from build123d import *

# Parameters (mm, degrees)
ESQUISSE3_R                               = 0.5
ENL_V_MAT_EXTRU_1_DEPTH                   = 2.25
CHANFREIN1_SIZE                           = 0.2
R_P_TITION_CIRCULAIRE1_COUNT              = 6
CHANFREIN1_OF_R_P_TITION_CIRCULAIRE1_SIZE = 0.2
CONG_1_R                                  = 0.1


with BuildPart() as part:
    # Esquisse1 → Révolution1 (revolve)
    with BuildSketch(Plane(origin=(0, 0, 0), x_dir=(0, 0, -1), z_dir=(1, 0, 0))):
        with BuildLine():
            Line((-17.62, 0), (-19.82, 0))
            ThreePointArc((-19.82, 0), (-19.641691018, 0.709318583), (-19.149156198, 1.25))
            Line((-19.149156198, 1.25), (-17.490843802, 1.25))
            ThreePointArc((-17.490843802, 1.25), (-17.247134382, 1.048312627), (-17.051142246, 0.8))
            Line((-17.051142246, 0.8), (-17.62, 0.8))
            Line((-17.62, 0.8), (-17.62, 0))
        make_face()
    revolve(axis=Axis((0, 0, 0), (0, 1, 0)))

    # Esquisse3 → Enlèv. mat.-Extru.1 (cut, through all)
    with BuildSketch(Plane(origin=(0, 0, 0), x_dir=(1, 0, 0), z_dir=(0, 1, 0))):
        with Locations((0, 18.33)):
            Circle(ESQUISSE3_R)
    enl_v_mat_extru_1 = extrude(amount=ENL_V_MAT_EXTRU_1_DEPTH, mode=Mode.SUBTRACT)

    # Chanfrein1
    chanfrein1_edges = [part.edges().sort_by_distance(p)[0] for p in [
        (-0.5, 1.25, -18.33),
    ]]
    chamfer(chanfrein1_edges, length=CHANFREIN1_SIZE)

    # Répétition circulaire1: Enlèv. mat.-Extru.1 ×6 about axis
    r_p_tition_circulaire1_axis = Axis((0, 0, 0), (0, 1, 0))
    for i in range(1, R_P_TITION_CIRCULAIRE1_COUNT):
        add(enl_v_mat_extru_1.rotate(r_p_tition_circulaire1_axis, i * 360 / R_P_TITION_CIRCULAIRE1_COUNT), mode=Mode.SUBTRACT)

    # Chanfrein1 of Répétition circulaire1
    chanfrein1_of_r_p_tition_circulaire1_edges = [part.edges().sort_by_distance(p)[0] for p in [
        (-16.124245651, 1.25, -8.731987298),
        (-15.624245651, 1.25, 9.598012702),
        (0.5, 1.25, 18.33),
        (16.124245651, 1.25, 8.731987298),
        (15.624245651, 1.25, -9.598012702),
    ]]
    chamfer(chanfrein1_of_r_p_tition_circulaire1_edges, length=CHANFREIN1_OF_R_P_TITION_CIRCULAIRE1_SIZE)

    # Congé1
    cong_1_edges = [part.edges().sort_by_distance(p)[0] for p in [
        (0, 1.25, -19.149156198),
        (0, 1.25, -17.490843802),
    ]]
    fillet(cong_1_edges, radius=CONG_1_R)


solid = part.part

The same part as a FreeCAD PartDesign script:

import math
import FreeCAD as App
import Part
import Sketcher


def edges_at(feature, points):
    """Names of the edges that pass closest to the given points."""
    edges = feature.Shape.Edges
    near = lambda p: min(range(len(edges)), key=lambda i: edges[i].distToShape(Part.Vertex(*p))[0])
    return sorted({f"Edge{near(p) + 1}" for p in points})

doc = App.newDocument("Part")
body = doc.addObject("PartDesign::Body", "Body")

# Sketch on YZ plane
sketch1 = body.newObject("Sketcher::SketchObject", "Sketch")
sketch1.AttachmentSupport = (doc.getObject("YZ_Plane"), [""])
sketch1.MapMode = "FlatFace"
sketch1.addGeometry([
    Part.LineSegment(App.Vector(0, 19.8, 0), App.Vector(0, 17.6, 0)),  # 0
    Part.LineSegment(App.Vector(0, 17.6, 0), App.Vector(0.8, 17.6, 0)),  # 1
    Part.LineSegment(App.Vector(0.8, 17.6, 0), App.Vector(0.8, 17.1, 0)),  # 2
    Part.ArcOfCircle(Part.Circle(App.Vector(0, 18.3, 0), App.Vector(0, 0, 1), 1.5), math.radians(-58), math.radians(-34)),  # 3
    Part.LineSegment(App.Vector(1.2, 17.5, 0), App.Vector(1.2, 19.1, 0)),  # 4
    Part.ArcOfCircle(Part.Circle(App.Vector(0, 18.3, 0), App.Vector(0, 0, 1), 1.5), math.radians(34), math.radians(90)),  # 5
], False)
sketch1.addConstraint([
    Sketcher.Constraint("Coincident", 0, 2, 1, 1),
    Sketcher.Constraint("Coincident", 1, 2, 2, 1),
    Sketcher.Constraint("Coincident", 2, 2, 3, 1),
    Sketcher.Constraint("Coincident", 3, 2, 4, 1),
    Sketcher.Constraint("Coincident", 4, 2, 5, 1),
    Sketcher.Constraint("Coincident", 5, 2, 0, 1),
    Sketcher.Constraint("Vertical", 0),
    Sketcher.Constraint("Horizontal", 1),
    Sketcher.Constraint("Vertical", 2),
    Sketcher.Constraint("Vertical", 4),
    Sketcher.Constraint("Coincident", 5, 3, 3, 3),
    Sketcher.Constraint("Equal", 3, 5),
    Sketcher.Constraint("PointOnObject", 3, 3, -2),
    Sketcher.Constraint("PointOnObject", 0, 2, -2),
    Sketcher.Constraint("Radius", 3, 1.5),
    Sketcher.Constraint("DistanceX", 1, 1, 1, 2, 0.8),
    Sketcher.Constraint("DistanceY", 0, 2, 0, 1, 2.2),
    Sketcher.Constraint("DistanceY", -1, 1, 3, 3, 18.32),
    Sketcher.Constraint("DistanceX", -1, 1, 3, 2, 1.25),
])
revolution = body.newObject("PartDesign::Revolution", "Revolution")
revolution.Profile = sketch1
revolution.ReferenceAxis = (sketch1, ["H_Axis"])
revolution.Angle = 360

# Sketch on XZ plane
sketch2 = body.newObject("Sketcher::SketchObject", "Sketch001")
sketch2.AttachmentSupport = (doc.getObject("XZ_Plane"), [""])
sketch2.MapMode = "FlatFace"
sketch2.addGeometry(Part.Circle(App.Vector(0, -18.3, 0), App.Vector(0, 0, 1), 0.5), False)
sketch2.addConstraint([
    Sketcher.Constraint("PointOnObject", 0, 3, -2),
    Sketcher.Constraint("Diameter", 0, 1.0),
    Sketcher.Constraint("DistanceY", 0, 3, -1, 1, 18.33),
])
pocket1 = body.newObject("PartDesign::Pocket", "Pocket")
pocket1.Profile = sketch2
pocket1.Type = "ThroughAll"
doc.recompute()

chamfer = body.newObject("PartDesign::Chamfer", "Chamfer")
chamfer.Base = (pocket1, edges_at(pocket1, [(-0.5, 1.25, -18.33)]))
chamfer.Size = 0.2
doc.recompute()

polarpattern = body.newObject("PartDesign::PolarPattern", "PolarPattern")
polarpattern.Originals = [pocket1]
polarpattern.Axis = (doc.getObject("Y_Axis"), [""])
polarpattern.Angle = 360
polarpattern.Occurrences = 6
body.Tip = polarpattern
doc.recompute()

chamfer2 = body.newObject("PartDesign::Chamfer", "Chamfer001")
chamfer2.Base = (polarpattern, edges_at(polarpattern, [
    (-16.124, 1.25, -8.732),
    (-15.624, 1.25, 9.598),
    (0.5, 1.25, 18.33),
    (16.124, 1.25, 8.732),
    (15.624, 1.25, -9.598),
]))
chamfer2.Size = 0.2
doc.recompute()

fillet = body.newObject("PartDesign::Fillet", "Fillet")
fillet.Base = (chamfer2, edges_at(chamfer2, [(0, 1.25, -19.149), (0, 1.25, -17.491)]))
fillet.Radius = 0.1

doc.recompute()
